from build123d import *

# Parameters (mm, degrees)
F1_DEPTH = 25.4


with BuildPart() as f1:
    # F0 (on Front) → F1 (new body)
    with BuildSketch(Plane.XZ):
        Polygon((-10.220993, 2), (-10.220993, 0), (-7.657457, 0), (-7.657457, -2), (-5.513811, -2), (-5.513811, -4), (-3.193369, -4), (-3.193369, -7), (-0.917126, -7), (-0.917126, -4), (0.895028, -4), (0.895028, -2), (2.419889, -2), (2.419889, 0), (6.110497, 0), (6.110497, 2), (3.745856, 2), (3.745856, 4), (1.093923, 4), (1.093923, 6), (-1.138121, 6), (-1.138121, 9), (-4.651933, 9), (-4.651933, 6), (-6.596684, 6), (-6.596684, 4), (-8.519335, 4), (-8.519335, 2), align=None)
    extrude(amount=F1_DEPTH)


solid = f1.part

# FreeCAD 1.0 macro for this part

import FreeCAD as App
import Part
import Sketcher

V = App.Vector
Q = App.Units.Quantity

doc = App.newDocument("Part")
params = doc.addObject("Spreadsheet::Sheet", "Params")
for row, (alias, value) in enumerate([
    ("sketch1_height", "2 mm"),
    ("sketch1_height2", "3 mm"),
    ("pad1_length", "25.4 mm"),
], start=1):
    params.set(f"A{row}", alias)
    params.set(f"B{row}", "=" + value)
    params.setAlias(f"B{row}", alias)

body = doc.addObject("PartDesign::Body", "Body")

sketch1 = doc.addObject("Sketcher::SketchObject", "Sketch")
body.addObject(sketch1)
sketch1.AttachmentSupport = (doc.XZ_Plane, [""])
sketch1.MapMode = "FlatFace"
sketch1.addGeometry([
    Part.LineSegment(V(-10.220993, 2, 0), V(-10.220993, 0, 0)),
    Part.LineSegment(V(-10.220993, 0, 0), V(-7.657457, 0, 0)),
    Part.LineSegment(V(-7.657457, 0, 0), V(-7.657457, -2, 0)),
    Part.LineSegment(V(-7.657457, -2, 0), V(-5.513811, -2, 0)),
    Part.LineSegment(V(-5.513811, -2, 0), V(-5.513811, -4, 0)),
    Part.LineSegment(V(-5.513811, -4, 0), V(-3.193369, -4, 0)),
    Part.LineSegment(V(-3.193369, -4, 0), V(-3.193369, -7, 0)),
    Part.LineSegment(V(-3.193369, -7, 0), V(-0.917126, -7, 0)),
    Part.LineSegment(V(-0.917126, -7, 0), V(-0.917126, -4, 0)),
    Part.LineSegment(V(-0.917126, -4, 0), V(0.895028, -4, 0)),
    Part.LineSegment(V(0.895028, -4, 0), V(0.895028, -2, 0)),
    Part.LineSegment(V(0.895028, -2, 0), V(2.419889, -2, 0)),
    Part.LineSegment(V(2.419889, -2, 0), V(2.419889, 0, 0)),
    Part.LineSegment(V(2.419889, 0, 0), V(6.110497, 0, 0)),
    Part.LineSegment(V(6.110497, 0, 0), V(6.110497, 2, 0)),
    Part.LineSegment(V(6.110497, 2, 0), V(3.745856, 2, 0)),
    Part.LineSegment(V(3.745856, 2, 0), V(3.745856, 4, 0)),
    Part.LineSegment(V(3.745856, 4, 0), V(1.093923, 4, 0)),
    Part.LineSegment(V(1.093923, 4, 0), V(1.093923, 6, 0)),
    Part.LineSegment(V(1.093923, 6, 0), V(-1.138121, 6, 0)),
    Part.LineSegment(V(-1.138121, 6, 0), V(-1.138121, 9, 0)),
    Part.LineSegment(V(-1.138121, 9, 0), V(-4.651933, 9, 0)),
    Part.LineSegment(V(-4.651933, 9, 0), V(-4.651933, 6, 0)),
    Part.LineSegment(V(-4.651933, 6, 0), V(-6.596684, 6, 0)),
    Part.LineSegment(V(-6.596684, 6, 0), V(-6.596684, 4, 0)),
    Part.LineSegment(V(-6.596684, 4, 0), V(-8.519335, 4, 0)),
    Part.LineSegment(V(-8.519335, 4, 0), V(-8.519335, 2, 0)),
    Part.LineSegment(V(-8.519335, 2, 0), V(-10.220993, 2, 0)),
], False)
sketch1.addConstraint([
    Sketcher.Constraint("Coincident", 0, 2, 1, 1),
    Sketcher.Constraint("Coincident", 1, 2, 2, 1),
    Sketcher.Constraint("Coincident", 2, 2, 3, 1),
    Sketcher.Constraint("Coincident", 3, 2, 4, 1),
    Sketcher.Constraint("Coincident", 4, 2, 5, 1),
    Sketcher.Constraint("Coincident", 5, 2, 6, 1),
    Sketcher.Constraint("Coincident", 6, 2, 7, 1),
    Sketcher.Constraint("Coincident", 7, 2, 8, 1),
    Sketcher.Constraint("Coincident", 8, 2, 9, 1),
    Sketcher.Constraint("Coincident", 9, 2, 10, 1),
    Sketcher.Constraint("Coincident", 10, 2, 11, 1),
    Sketcher.Constraint("Coincident", 11, 2, 12, 1),
    Sketcher.Constraint("Coincident", 12, 2, 13, 1),
    Sketcher.Constraint("Coincident", 13, 2, 14, 1),
    Sketcher.Constraint("Coincident", 14, 2, 15, 1),
    Sketcher.Constraint("Coincident", 15, 2, 16, 1),
    Sketcher.Constraint("Coincident", 16, 2, 17, 1),
    Sketcher.Constraint("Coincident", 17, 2, 18, 1),
    Sketcher.Constraint("Coincident", 18, 2, 19, 1),
    Sketcher.Constraint("Coincident", 19, 2, 20, 1),
    Sketcher.Constraint("Coincident", 20, 2, 21, 1),
    Sketcher.Constraint("Coincident", 21, 2, 22, 1),
    Sketcher.Constraint("Coincident", 22, 2, 23, 1),
    Sketcher.Constraint("Coincident", 23, 2, 24, 1),
    Sketcher.Constraint("Coincident", 24, 2, 25, 1),
    Sketcher.Constraint("Coincident", 25, 2, 26, 1),
    Sketcher.Constraint("Coincident", 26, 2, 27, 1),
    Sketcher.Constraint("Coincident", 27, 2, 0, 1),
    Sketcher.Constraint("Vertical", 0),
    Sketcher.Constraint("Horizontal", 1),
    Sketcher.Constraint("Vertical", 2),
    Sketcher.Constraint("Horizontal", 3),
    Sketcher.Constraint("Vertical", 4),
    Sketcher.Constraint("Horizontal", 5),
    Sketcher.Constraint("Vertical", 6),
    Sketcher.Constraint("Horizontal", 7),
    Sketcher.Constraint("Vertical", 8),
    Sketcher.Constraint("Horizontal", 9),
    Sketcher.Constraint("Vertical", 10),
    Sketcher.Constraint("Horizontal", 11),
    Sketcher.Constraint("Vertical", 12),
    Sketcher.Constraint("Horizontal", 13),
    Sketcher.Constraint("Vertical", 14),
    Sketcher.Constraint("Horizontal", 15),
    Sketcher.Constraint("Vertical", 16),
    Sketcher.Constraint("Horizontal", 17),
    Sketcher.Constraint("Vertical", 18),
    Sketcher.Constraint("Horizontal", 19),
    Sketcher.Constraint("Vertical", 20),
    Sketcher.Constraint("Horizontal", 21),
    Sketcher.Constraint("Vertical", 22),
    Sketcher.Constraint("Horizontal", 23),
    Sketcher.Constraint("Vertical", 24),
    Sketcher.Constraint("Horizontal", 25),
    Sketcher.Constraint("Vertical", 26),
    Sketcher.Constraint("Horizontal", 27),
    Sketcher.Constraint("PointOnObject", 0, 2, -1),
    Sketcher.Constraint("PointOnObject", 12, 2, -1),
    Sketcher.Constraint("Horizontal", 5, 2, 8, 2),
    Sketcher.Constraint("Horizontal", 3, 2, 10, 2),
    Sketcher.Constraint("Horizontal", 19, 2, 22, 2),
    Sketcher.Constraint("Horizontal", 17, 2, 24, 2),
    Sketcher.Constraint("Horizontal", 15, 2, 26, 2),
    Sketcher.Constraint("Equal", 0, 2),
    Sketcher.Constraint("Equal", 2, 4),
    Sketcher.Constraint("Equal", 14, 16),
    Sketcher.Constraint("Equal", 16, 18),
    Sketcher.Constraint("Equal", 8, 20),
    Sketcher.Constraint("DistanceY", 0, 2, 0, 1, Q("2 mm")),
    Sketcher.Constraint("DistanceY", 6, 2, 6, 1, Q("3 mm")),
    Sketcher.Constraint("DistanceX", 5, 1, 5, 2, Q("2.320442 mm")),
    Sketcher.Constraint("DistanceX", 11, 1, 11, 2, Q("1.524861 mm")),
    Sketcher.Constraint("DistanceX", 15, 2, 15, 1, Q("2.364641 mm")),
    Sketcher.Constraint("DistanceX", 21, 2, 21, 1, Q("3.513812 mm")),
    Sketcher.Constraint("DistanceX", 23, 2, 23, 1, Q("1.944751 mm")),
    Sketcher.Constraint("DistanceX", 25, 2, 25, 1, Q("1.922651 mm")),
    Sketcher.Constraint("DistanceX", 27, 2, 27, 1, Q("1.701658 mm")),
    Sketcher.Constraint("DistanceX", 1, 1, 1, 2, Q("2.563536 mm")),
    Sketcher.Constraint("DistanceX", 3, 1, 3, 2, Q("2.143646 mm")),
    Sketcher.Constraint("DistanceX", 7, 1, 7, 2, Q("2.276243 mm")),
    Sketcher.Constraint("DistanceX", 9, 1, 9, 2, Q("1.812154 mm")),
    Sketcher.Constraint("DistanceX", 13, 1, 13, 2, Q("3.690608 mm")),
    Sketcher.Constraint("DistanceX", 17, 2, 17, 1, Q("2.651933 mm")),
    Sketcher.Constraint("DistanceX", 3, 2, -1, 1, Q("5.513811 mm")),
])
sketch1.setExpression("Constraints[68]", "Params.sketch1_height")
sketch1.setExpression("Constraints[69]", "Params.sketch1_height2")
pad1 = doc.addObject("PartDesign::Pad", "Pad")
body.addObject(pad1)
pad1.Profile = sketch1
pad1.setExpression("Length", "Params.pad1_length")

doc.recompute()
